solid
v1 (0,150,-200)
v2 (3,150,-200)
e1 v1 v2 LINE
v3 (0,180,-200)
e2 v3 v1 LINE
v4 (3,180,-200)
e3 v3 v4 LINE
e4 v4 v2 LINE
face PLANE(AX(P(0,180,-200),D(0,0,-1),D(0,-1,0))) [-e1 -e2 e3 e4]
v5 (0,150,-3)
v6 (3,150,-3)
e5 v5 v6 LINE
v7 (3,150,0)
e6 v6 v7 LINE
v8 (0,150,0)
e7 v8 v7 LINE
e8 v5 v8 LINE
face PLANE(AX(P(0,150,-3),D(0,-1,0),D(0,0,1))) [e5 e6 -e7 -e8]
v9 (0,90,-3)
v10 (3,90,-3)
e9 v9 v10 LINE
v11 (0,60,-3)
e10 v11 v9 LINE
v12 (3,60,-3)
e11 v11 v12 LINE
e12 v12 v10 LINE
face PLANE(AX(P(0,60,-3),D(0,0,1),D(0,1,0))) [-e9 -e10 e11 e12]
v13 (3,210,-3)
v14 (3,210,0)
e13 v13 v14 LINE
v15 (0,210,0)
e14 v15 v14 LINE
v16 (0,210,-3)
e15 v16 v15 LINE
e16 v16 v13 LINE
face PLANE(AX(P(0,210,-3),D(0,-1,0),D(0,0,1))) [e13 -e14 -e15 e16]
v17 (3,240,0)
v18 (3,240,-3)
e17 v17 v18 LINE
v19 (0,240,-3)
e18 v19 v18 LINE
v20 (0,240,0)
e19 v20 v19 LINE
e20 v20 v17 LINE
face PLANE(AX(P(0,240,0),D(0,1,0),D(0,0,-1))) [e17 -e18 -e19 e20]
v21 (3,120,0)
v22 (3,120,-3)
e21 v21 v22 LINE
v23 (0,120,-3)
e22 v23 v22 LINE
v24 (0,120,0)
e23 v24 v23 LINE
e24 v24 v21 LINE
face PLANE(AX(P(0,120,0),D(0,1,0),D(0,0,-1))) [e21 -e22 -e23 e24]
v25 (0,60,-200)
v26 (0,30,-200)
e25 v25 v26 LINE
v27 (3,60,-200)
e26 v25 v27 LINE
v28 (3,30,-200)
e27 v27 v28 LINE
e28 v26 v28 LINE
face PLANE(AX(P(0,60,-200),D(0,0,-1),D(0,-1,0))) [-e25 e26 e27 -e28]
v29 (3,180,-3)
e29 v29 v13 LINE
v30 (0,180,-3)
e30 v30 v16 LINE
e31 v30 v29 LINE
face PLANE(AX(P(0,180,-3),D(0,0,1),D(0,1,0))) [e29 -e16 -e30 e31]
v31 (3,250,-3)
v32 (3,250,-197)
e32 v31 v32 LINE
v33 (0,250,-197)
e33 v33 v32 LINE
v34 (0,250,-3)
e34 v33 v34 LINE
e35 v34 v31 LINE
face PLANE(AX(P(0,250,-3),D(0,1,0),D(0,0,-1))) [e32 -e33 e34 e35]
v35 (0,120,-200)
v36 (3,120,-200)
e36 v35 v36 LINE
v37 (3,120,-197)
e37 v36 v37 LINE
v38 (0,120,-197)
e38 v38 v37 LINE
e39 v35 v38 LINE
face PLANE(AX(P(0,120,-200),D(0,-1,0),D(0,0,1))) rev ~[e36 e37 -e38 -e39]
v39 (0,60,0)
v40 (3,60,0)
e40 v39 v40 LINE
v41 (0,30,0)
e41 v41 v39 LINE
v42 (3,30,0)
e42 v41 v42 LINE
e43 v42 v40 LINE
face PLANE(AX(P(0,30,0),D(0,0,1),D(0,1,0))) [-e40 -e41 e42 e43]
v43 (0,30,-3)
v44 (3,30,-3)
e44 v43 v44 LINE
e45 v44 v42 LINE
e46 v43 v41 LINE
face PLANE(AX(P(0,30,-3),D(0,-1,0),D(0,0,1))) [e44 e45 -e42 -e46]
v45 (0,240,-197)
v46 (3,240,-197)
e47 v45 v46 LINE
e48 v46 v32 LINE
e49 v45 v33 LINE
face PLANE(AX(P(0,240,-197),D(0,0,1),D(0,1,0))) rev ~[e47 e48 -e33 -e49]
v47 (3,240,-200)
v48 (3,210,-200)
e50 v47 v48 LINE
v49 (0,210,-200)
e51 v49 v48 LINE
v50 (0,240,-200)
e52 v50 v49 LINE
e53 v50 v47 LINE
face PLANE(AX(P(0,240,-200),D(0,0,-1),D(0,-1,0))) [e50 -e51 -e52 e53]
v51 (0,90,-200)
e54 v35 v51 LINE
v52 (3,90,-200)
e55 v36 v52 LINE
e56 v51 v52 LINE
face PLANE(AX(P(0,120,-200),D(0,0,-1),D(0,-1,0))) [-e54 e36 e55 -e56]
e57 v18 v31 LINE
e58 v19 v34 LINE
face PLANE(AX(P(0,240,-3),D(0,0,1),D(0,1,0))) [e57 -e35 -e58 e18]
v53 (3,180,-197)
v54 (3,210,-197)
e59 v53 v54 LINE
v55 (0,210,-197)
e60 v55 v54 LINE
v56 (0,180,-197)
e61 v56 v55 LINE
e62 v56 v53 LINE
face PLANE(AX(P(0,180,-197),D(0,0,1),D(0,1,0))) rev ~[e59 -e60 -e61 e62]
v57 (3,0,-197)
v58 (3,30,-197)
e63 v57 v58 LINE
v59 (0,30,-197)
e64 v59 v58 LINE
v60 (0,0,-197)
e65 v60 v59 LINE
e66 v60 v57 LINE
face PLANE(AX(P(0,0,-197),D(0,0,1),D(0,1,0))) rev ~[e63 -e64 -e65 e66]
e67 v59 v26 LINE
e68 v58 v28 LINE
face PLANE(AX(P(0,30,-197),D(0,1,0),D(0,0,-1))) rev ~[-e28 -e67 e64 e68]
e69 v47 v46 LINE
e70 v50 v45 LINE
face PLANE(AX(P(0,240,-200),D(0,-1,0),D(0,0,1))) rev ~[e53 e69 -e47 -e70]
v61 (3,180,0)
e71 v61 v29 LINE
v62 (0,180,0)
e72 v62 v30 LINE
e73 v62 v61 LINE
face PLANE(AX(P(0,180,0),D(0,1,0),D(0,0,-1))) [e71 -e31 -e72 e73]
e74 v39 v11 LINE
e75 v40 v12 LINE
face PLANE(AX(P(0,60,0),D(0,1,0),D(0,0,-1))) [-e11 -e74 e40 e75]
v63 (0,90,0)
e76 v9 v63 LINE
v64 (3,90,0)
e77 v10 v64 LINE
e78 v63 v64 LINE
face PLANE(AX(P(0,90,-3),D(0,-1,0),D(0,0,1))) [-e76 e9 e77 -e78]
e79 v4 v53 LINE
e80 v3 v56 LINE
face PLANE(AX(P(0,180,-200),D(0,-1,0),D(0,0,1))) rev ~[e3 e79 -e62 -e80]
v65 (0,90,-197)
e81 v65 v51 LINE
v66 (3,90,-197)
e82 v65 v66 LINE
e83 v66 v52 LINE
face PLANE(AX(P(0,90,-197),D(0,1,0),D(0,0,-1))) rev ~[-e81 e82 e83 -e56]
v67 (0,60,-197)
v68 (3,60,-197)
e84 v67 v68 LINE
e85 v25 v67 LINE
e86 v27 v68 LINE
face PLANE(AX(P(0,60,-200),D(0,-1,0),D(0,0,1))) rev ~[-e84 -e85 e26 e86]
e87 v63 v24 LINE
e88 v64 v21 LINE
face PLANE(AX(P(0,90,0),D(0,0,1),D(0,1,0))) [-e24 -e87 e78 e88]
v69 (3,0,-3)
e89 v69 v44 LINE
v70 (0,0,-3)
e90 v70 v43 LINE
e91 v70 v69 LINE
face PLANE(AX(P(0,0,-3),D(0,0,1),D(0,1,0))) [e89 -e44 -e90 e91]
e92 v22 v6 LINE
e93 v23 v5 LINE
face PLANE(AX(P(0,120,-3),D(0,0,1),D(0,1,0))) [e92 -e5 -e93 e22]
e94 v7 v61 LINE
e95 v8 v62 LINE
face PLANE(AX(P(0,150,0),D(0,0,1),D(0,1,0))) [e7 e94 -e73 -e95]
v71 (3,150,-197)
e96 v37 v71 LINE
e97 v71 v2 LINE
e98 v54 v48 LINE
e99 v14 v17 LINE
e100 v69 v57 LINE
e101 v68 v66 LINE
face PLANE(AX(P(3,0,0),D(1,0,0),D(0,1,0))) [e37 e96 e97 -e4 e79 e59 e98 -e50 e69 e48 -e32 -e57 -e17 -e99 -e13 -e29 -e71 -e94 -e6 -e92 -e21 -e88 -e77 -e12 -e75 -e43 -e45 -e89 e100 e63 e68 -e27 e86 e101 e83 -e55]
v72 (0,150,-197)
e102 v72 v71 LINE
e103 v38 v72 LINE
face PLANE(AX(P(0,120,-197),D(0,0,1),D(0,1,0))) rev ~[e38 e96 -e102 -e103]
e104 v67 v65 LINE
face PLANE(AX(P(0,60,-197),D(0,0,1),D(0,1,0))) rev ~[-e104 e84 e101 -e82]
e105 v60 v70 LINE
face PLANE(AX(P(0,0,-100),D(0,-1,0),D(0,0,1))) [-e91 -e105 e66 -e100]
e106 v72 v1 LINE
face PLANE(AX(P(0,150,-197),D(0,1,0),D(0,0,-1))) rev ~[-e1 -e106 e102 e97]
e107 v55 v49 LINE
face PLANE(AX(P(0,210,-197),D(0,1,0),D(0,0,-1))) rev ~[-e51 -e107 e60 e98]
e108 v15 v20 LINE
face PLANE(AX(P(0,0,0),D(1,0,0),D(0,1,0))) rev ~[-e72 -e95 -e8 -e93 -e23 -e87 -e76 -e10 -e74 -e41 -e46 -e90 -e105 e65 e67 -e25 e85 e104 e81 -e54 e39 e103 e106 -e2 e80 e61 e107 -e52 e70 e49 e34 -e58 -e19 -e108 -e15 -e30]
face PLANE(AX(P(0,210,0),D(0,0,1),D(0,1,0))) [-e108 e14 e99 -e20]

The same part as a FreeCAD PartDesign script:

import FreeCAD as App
import Part
import Sketcher
from FreeCAD import Vector
Q = App.Units.Quantity


def add_polygon(sketch, points):
    """Adds a closed chain of lines whose ends are joined by coincident constraints."""
    first, n = sketch.GeometryCount, len(points)
    for a, b in zip(points, points[1:] + points[:1]):
        sketch.addGeometry(Part.LineSegment(App.Vector(*a, 0), App.Vector(*b, 0)), False)
    for i in range(n):
        sketch.addConstraint(Sketcher.Constraint("Coincident", first + i, 2, first + (i + 1) % n, 1))

doc = App.newDocument("Part")
body = doc.addObject("PartDesign::Body", "Body")

# Sketch on YZ plane
sketch1 = body.newObject("Sketcher::SketchObject", "Sketch")
sketch1.AttachmentSupport = (doc.getObject("YZ_Plane"), [""])
sketch1.MapMode = "FlatFace"
add_polygon(sketch1, [(250, -3), (240, -3), (240, 0), (210, 0), (210, -3), (180, -3), (180, 0), (150, 0), (150, -3), (120, -3), (120, 0), (90, 0), (90, -3), (60, -3), (60, 0), (30, 0), (30, -3), (0, -3), (0, -197), (30, -197), (30, -200), (60, -200), (60, -197), (90, -197), (90, -200), (120, -200), (120, -197), (150, -197), (150, -200), (180, -200), (180, -197), (210, -197), (210, -200), (240, -200), (240, -197), (250, -197)])  # lines 0-35
sketch1.addConstraint(Sketcher.Constraint("Horizontal", 0))
sketch1.addConstraint(Sketcher.Constraint("Vertical", 1))
sketch1.addConstraint(Sketcher.Constraint("Horizontal", 2))
sketch1.addConstraint(Sketcher.Constraint("Vertical", 3))
sketch1.addConstraint(Sketcher.Constraint("Horizontal", 4))
sketch1.addConstraint(Sketcher.Constraint("Vertical", 5))
sketch1.addConstraint(Sketcher.Constraint("Horizontal", 6))
sketch1.addConstraint(Sketcher.Constraint("Vertical", 7))
sketch1.addConstraint(Sketcher.Constraint("Horizontal", 8))
sketch1.addConstraint(Sketcher.Constraint("Vertical", 9))
sketch1.addConstraint(Sketcher.Constraint("Horizontal", 10))
sketch1.addConstraint(Sketcher.Constraint("Vertical", 11))
sketch1.addConstraint(Sketcher.Constraint("Horizontal", 12))
sketch1.addConstraint(Sketcher.Constraint("Vertical", 13))
sketch1.addConstraint(Sketcher.Constraint("Horizontal", 14))
sketch1.addConstraint(Sketcher.Constraint("Vertical", 15))
sketch1.addConstraint(Sketcher.Constraint("Horizontal", 16))
sketch1.addConstraint(Sketcher.Constraint("Vertical", 17))
sketch1.addConstraint(Sketcher.Constraint("Horizontal", 18))
sketch1.addConstraint(Sketcher.Constraint("Vertical", 19))
sketch1.addConstraint(Sketcher.Constraint("Horizontal", 20))
sketch1.addConstraint(Sketcher.Constraint("Vertical", 21))
sketch1.addConstraint(Sketcher.Constraint("Horizontal", 22))
sketch1.addConstraint(Sketcher.Constraint("Vertical", 23))
sketch1.addConstraint(Sketcher.Constraint("Horizontal", 24))
sketch1.addConstraint(Sketcher.Constraint("Vertical", 25))
sketch1.addConstraint(Sketcher.Constraint("Horizontal", 26))
sketch1.addConstraint(Sketcher.Constraint("Vertical", 27))
sketch1.addConstraint(Sketcher.Constraint("Horizontal", 28))
sketch1.addConstraint(Sketcher.Constraint("Vertical", 29))
sketch1.addConstraint(Sketcher.Constraint("Horizontal", 30))
sketch1.addConstraint(Sketcher.Constraint("Vertical", 31))
sketch1.addConstraint(Sketcher.Constraint("Horizontal", 32))
sketch1.addConstraint(Sketcher.Constraint("Vertical", 33))
sketch1.addConstraint(Sketcher.Constraint("Horizontal", 34))
sketch1.addConstraint(Sketcher.Constraint("Vertical", 35))
sketch1.addConstraint(Sketcher.Constraint("PointOnObject", 1, 2, -1))
sketch1.addConstraint(Sketcher.Constraint("PointOnObject", 5, 2, -1))
sketch1.addConstraint(Sketcher.Constraint("PointOnObject", 9, 2, -1))
sketch1.addConstraint(Sketcher.Constraint("PointOnObject", 13, 2, -1))
sketch1.addConstraint(Sketcher.Constraint("PointOnObject", 16, 2, -2))
sketch1.addConstraint(Sketcher.Constraint("Horizontal", 0, 2, 3, 2))
sketch1.addConstraint(Sketcher.Constraint("Horizontal", 4, 2, 7, 2))
sketch1.addConstraint(Sketcher.Constraint("Horizontal", 8, 2, 11, 2))
sketch1.addConstraint(Sketcher.Constraint("Horizontal", 12, 2, 15, 2))
sketch1.addConstraint(Sketcher.Constraint("Horizontal", 18, 2, 21, 2))
sketch1.addConstraint(Sketcher.Constraint("Horizontal", 20, 2, 23, 2))
sketch1.addConstraint(Sketcher.Constraint("Horizontal", 22, 2, 25, 2))
sketch1.addConstraint(Sketcher.Constraint("Horizontal", 24, 2, 27, 2))
sketch1.addConstraint(Sketcher.Constraint("Horizontal", 26, 2, 29, 2))
sketch1.addConstraint(Sketcher.Constraint("Horizontal", 28, 2, 31, 2))
sketch1.addConstraint(Sketcher.Constraint("Horizontal", 30, 2, 33, 2))
sketch1.addConstraint(Sketcher.Constraint("Vertical", 15, 2, 18, 2))
sketch1.addConstraint(Sketcher.Constraint("Vertical", 13, 2, 20, 2))
sketch1.addConstraint(Sketcher.Constraint("Vertical", 11, 2, 22, 2))
sketch1.addConstraint(Sketcher.Constraint("Vertical", 9, 2, 24, 2))
sketch1.addConstraint(Sketcher.Constraint("Vertical", 7, 2, 26, 2))
sketch1.addConstraint(Sketcher.Constraint("Vertical", 5, 2, 28, 2))
sketch1.addConstraint(Sketcher.Constraint("Vertical", 3, 2, 30, 2))
sketch1.addConstraint(Sketcher.Constraint("Vertical", 1, 2, 32, 2))
sketch1.addConstraint(Sketcher.Constraint("Equal", 2, 4))
sketch1.addConstraint(Sketcher.Constraint("Equal", 4, 6))
sketch1.addConstraint(Sketcher.Constraint("Equal", 6, 8))
sketch1.addConstraint(Sketcher.Constraint("Equal", 8, 10))
sketch1.addConstraint(Sketcher.Constraint("Equal", 10, 12))
sketch1.addConstraint(Sketcher.Constraint("Equal", 12, 14))
sketch1.addConstraint(Sketcher.Constraint("Equal", 14, 16))
sketch1.addConstraint(Sketcher.Constraint("Equal", 15, 19))
sketch1.addConstraint(Sketcher.Constraint("DistanceX", 0, 2, 0, 1, Q("10 mm")))
sketch1.addConstraint(Sketcher.Constraint("DistanceX", 2, 2, 2, 1, Q("30 mm")))
sketch1.addConstraint(Sketcher.Constraint("DistanceY", 1, 1, 1, 2, Q("3 mm")))
sketch1.addConstraint(Sketcher.Constraint("DistanceY", 19, 2, -1, 1, Q("200 mm")))
pad1 = body.newObject("PartDesign::Pad", "Pad")
pad1.Profile = sketch1
pad1.Length = 3

doc.recompute()
